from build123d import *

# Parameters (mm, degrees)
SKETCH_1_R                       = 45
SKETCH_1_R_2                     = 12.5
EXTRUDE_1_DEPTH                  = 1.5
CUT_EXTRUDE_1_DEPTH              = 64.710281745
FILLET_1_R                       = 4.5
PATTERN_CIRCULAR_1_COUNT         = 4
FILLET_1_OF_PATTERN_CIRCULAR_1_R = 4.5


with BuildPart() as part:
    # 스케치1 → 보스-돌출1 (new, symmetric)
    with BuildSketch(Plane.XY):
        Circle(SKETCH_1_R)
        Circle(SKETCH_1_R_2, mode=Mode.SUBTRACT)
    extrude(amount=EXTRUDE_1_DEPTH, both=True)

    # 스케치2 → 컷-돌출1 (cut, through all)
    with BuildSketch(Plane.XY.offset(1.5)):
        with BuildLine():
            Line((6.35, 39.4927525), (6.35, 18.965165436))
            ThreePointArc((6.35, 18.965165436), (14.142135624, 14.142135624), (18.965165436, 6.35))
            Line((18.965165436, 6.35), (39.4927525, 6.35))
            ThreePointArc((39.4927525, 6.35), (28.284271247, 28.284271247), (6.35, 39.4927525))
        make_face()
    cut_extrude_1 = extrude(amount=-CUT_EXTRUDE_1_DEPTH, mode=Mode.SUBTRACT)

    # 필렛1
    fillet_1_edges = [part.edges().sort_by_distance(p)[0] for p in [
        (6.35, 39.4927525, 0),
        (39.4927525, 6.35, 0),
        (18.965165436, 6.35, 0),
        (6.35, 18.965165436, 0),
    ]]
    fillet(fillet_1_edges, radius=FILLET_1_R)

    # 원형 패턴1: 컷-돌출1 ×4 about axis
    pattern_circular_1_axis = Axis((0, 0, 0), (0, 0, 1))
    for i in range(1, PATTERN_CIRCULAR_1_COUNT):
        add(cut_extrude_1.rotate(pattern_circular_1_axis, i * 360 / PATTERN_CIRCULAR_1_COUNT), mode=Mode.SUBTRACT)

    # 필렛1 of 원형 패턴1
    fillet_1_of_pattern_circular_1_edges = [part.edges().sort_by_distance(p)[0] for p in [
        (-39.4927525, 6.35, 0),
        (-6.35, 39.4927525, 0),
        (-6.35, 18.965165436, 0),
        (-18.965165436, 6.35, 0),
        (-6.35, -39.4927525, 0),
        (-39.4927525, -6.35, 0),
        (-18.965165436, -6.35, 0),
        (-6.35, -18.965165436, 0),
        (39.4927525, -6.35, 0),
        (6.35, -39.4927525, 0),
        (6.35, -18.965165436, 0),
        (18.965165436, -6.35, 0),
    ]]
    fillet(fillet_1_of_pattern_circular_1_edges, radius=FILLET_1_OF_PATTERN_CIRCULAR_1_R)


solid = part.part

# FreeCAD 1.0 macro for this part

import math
import FreeCAD as App
import Part
import Sketcher
Q = App.Units.Quantity


def edges_at(feature, points):
    """Names of the edges that pass closest to the given points."""
    edges = feature.Shape.Edges
    near = lambda p: min(range(len(edges)), key=lambda i: edges[i].distToShape(Part.Vertex(*p))[0])
    return sorted({f"Edge{near(p) + 1}" for p in points})

doc = App.newDocument("Part")
body = doc.addObject("PartDesign::Body", "Body")

# Sketch on XY plane
sketch1 = body.newObject("Sketcher::SketchObject", "Sketch")
sketch1.AttachmentSupport = (doc.getObject("XY_Plane"), [""])
sketch1.MapMode = "FlatFace"
sketch1.addGeometry(Part.Circle(App.Vector(0, 0, 0), App.Vector(0, 0, 1), 45), False)
sketch1.addGeometry(Part.Circle(App.Vector(0, 0, 0), App.Vector(0, 0, 1), 12), False)
sketch1.addConstraint(Sketcher.Constraint("Coincident", 0, 3, -1, 1))
sketch1.addConstraint(Sketcher.Constraint("Coincident", 1, 3, -1, 1))
sketch1.addConstraint(Sketcher.Constraint("Diameter", 0, Q("90 mm")))
sketch1.addConstraint(Sketcher.Constraint("Diameter", 1, Q("25 mm")))
pad1 = body.newObject("PartDesign::Pad", "Pad")
pad1.Profile = sketch1
pad1.Length = 3
pad1.Midplane = True

# Sketch on XY plane
sketch2 = body.newObject("Sketcher::SketchObject", "Sketch001")
sketch2.AttachmentSupport = (doc.getObject("XY_Plane"), [""])
sketch2.MapMode = "FlatFace"
sketch2.AttachmentOffset = App.Placement(App.Vector(0, 0, 1.5), App.Rotation())
sketch2.addGeometry(Part.LineSegment(App.Vector(6, 39, 0), App.Vector(6, 19, 0)), False)
sketch2.addGeometry(Part.ArcOfCircle(Part.Circle(App.Vector(0, 0, 0), App.Vector(0, 0, 1), 20), math.radians(19), math.radians(71)), False)
sketch2.addGeometry(Part.LineSegment(App.Vector(19, 6, 0), App.Vector(39, 6, 0)), False)
sketch2.addGeometry(Part.ArcOfCircle(Part.Circle(App.Vector(0, 0, 0), App.Vector(0, 0, 1), 40), math.radians(9), math.radians(81)), False)
sketch2.addConstraint(Sketcher.Constraint("Coincident", 0, 2, 1, 2))
sketch2.addConstraint(Sketcher.Constraint("Coincident", 1, 1, 2, 1))
sketch2.addConstraint(Sketcher.Constraint("Coincident", 2, 2, 3, 1))
sketch2.addConstraint(Sketcher.Constraint("Coincident", 3, 2, 0, 1))
sketch2.addConstraint(Sketcher.Constraint("Vertical", 0))
sketch2.addConstraint(Sketcher.Constraint("Horizontal", 2))
sketch2.addConstraint(Sketcher.Constraint("Coincident", 1, 3, -1, 1))
sketch2.addConstraint(Sketcher.Constraint("Coincident", 3, 3, -1, 1))
sketch2.addConstraint(Sketcher.Constraint("Equal", 2, 0))
sketch2.addConstraint(Sketcher.Constraint("Radius", 1, Q("20 mm")))
sketch2.addConstraint(Sketcher.Constraint("Radius", 3, Q("40 mm")))
sketch2.addConstraint(Sketcher.Constraint("DistanceX", -1, 1, 0, 2, Q("6.35 mm")))
pocket1 = body.newObject("PartDesign::Pocket", "Pocket")
pocket1.Profile = sketch2
pocket1.Type = "ThroughAll"
doc.recompute()

fillet = body.newObject("PartDesign::Fillet", "Fillet")
fillet.Base = (pocket1, edges_at(pocket1, [
    (6.35, 39.493, 0),
    (39.493, 6.35, 0),
    (18.965, 6.35, 0),
    (6.35, 18.965, 0),
]))
fillet.Radius = 4.5
doc.recompute()

polarpattern = body.newObject("PartDesign::PolarPattern", "PolarPattern")
polarpattern.Originals = [pocket1]
polarpattern.Axis = (doc.getObject("Z_Axis"), [""])
polarpattern.Angle = 360
polarpattern.Occurrences = 4
body.Tip = polarpattern
doc.recompute()

fillet2 = body.newObject("PartDesign::Fillet", "Fillet001")
fillet2.Base = (polarpattern, edges_at(polarpattern, [
    (-39.493, 6.35, 0),
    (-6.35, 39.493, 0),
    (-6.35, 18.965, 0),
    (-18.965, 6.35, 0),
    (-6.35, -39.493, 0),
    (-39.493, -6.35, 0),
    (-18.965, -6.35, 0),
    (-6.35, -18.965, 0),
    (39.493, -6.35, 0),
    (6.35, -39.493, 0),
    (6.35, -18.965, 0),
    (18.965, -6.35, 0),
]))
fillet2.Radius = 4.5

doc.recompute()
